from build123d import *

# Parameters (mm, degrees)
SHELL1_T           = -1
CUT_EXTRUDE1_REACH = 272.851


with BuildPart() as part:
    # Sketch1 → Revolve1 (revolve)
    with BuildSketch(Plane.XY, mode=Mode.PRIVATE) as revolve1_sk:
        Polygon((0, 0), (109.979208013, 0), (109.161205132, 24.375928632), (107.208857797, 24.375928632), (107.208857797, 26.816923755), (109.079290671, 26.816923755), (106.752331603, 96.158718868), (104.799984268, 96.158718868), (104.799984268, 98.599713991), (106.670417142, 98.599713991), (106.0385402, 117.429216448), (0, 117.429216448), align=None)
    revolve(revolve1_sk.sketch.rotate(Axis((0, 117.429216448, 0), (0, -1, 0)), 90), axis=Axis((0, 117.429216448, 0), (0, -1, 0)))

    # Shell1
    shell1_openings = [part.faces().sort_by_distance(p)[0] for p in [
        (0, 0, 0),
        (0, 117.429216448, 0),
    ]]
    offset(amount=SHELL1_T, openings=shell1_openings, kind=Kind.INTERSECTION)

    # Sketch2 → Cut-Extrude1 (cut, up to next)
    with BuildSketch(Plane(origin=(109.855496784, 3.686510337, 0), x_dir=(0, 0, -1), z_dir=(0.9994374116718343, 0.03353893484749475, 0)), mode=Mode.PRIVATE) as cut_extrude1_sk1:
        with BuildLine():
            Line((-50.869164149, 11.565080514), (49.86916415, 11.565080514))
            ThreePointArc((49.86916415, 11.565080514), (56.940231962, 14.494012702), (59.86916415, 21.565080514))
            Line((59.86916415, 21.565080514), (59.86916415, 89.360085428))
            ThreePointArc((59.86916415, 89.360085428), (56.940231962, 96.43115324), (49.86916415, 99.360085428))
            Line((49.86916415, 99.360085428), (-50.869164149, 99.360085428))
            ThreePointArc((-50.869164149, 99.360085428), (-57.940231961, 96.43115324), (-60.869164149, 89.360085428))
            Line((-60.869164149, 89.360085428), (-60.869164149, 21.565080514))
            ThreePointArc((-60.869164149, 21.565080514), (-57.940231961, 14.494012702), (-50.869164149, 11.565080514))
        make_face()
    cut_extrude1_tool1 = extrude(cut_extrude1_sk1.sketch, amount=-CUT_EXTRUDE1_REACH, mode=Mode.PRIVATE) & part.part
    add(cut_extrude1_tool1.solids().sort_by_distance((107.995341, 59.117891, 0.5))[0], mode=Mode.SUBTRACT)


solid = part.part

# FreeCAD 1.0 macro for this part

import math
import FreeCAD as App
import Part
import Sketcher
Q = App.Units.Quantity


def faces_at(feature, points):
    """Names of the faces that lie closest to the given points."""
    faces = feature.Shape.Faces
    near = lambda p: min(range(len(faces)), key=lambda i: faces[i].distToShape(Part.Vertex(*p))[0])
    return sorted({f"Face{near(p) + 1}" for p in points})


def add_polygon(sketch, points):
    """Adds a closed chain of lines whose ends are joined by coincident constraints."""
    first, n = sketch.GeometryCount, len(points)
    for a, b in zip(points, points[1:] + points[:1]):
        sketch.addGeometry(Part.LineSegment(App.Vector(*a, 0), App.Vector(*b, 0)), False)
    for i in range(n):
        sketch.addConstraint(Sketcher.Constraint("Coincident", first + i, 2, first + (i + 1) % n, 1))

doc = App.newDocument("Part")
body = doc.addObject("PartDesign::Body", "Body")

# Sketch on XY plane
sketch1 = body.newObject("Sketcher::SketchObject", "Sketch")
sketch1.AttachmentSupport = (doc.getObject("XY_Plane"), [""])
sketch1.MapMode = "FlatFace"
add_polygon(sketch1, [(0, 0), (110, 0), (109.2, 24.4), (107.2, 24.4), (107.2, 26.8), (109.1, 26.8), (106.8, 96.2), (104.8, 96.2), (104.8, 98.6), (106.7, 98.6), (106, 117.4), (0, 117.4)])  # lines 0-11
sketch1.addConstraint(Sketcher.Constraint("Horizontal", 0))
sketch1.addConstraint(Sketcher.Constraint("Horizontal", 2))
sketch1.addConstraint(Sketcher.Constraint("Vertical", 3))
sketch1.addConstraint(Sketcher.Constraint("Horizontal", 4))
sketch1.addConstraint(Sketcher.Constraint("Horizontal", 6))
sketch1.addConstraint(Sketcher.Constraint("Vertical", 7))
sketch1.addConstraint(Sketcher.Constraint("Horizontal", 8))
sketch1.addConstraint(Sketcher.Constraint("Horizontal", 10))
sketch1.addConstraint(Sketcher.Constraint("Vertical", 11))
sketch1.addConstraint(Sketcher.Constraint("Coincident", 11, 2, -1, 1))
sketch1.addConstraint(Sketcher.Constraint("Parallel", 1, 5))
sketch1.addConstraint(Sketcher.Constraint("Parallel", 5, 9))
sketch1.addConstraint(Sketcher.Constraint("Equal", 2, 6))
sketch1.addConstraint(Sketcher.Constraint("Equal", 4, 8))
sketch1.addConstraint(Sketcher.Constraint("Equal", 3, 7))
sketch1.addConstraint(Sketcher.Constraint("Distance", 9, Q("18.840102 mm")))
sketch1.addConstraint(Sketcher.Constraint("DistanceX", 0, 1, 0, 2, Q("109.979208 mm")))
sketch1.addConstraint(Sketcher.Constraint("DistanceX", 10, 2, 10, 1, Q("106.03854 mm")))
sketch1.addConstraint(Sketcher.Constraint("Distance", 1, Q("24.38965 mm")))
sketch1.addConstraint(Sketcher.Constraint("DistanceX", 2, 2, 2, 1, Q("1.952347 mm")))
sketch1.addConstraint(Sketcher.Constraint("DistanceX", 4, 1, 4, 2, Q("1.870433 mm")))
sketch1.addConstraint(Sketcher.Constraint("DistanceY", 3, 1, 3, 2, Q("2.440995 mm")))
sketch1.addConstraint(Sketcher.Constraint("DistanceY", 11, 2, 11, 1, Q("117.429216 mm")))
revolution = body.newObject("PartDesign::Revolution", "Revolution")
revolution.Profile = sketch1
revolution.ReferenceAxis = (sketch1, ["V_Axis"])
revolution.Angle = 360
doc.recompute()

thickness = body.newObject("PartDesign::Thickness", "Thickness")
thickness.Base = (revolution, faces_at(revolution, [(0, 0, 0), (0, 117.429, 0)]))
thickness.Value = 1
thickness.Reversed = True
thickness.Join = "Intersection"

# Sketch on an angled plane
sketch2 = body.newObject("Sketcher::SketchObject", "Sketch001")
sketch2.Placement = App.Placement(App.Vector(109.855497, 3.68651, 0), App.Rotation(App.Vector(0, 0, -1), App.Vector(-0.033538935, 0.999437412, 0), App.Vector(0.999437412, 0.033538935, 0), "ZXY"))
sketch2.addGeometry(Part.LineSegment(App.Vector(-51, 12, 0), App.Vector(50, 12, 0)), False)
sketch2.addGeometry(Part.ArcOfCircle(Part.Circle(App.Vector(50, 22, 0), App.Vector(0, 0, 1), 10), math.radians(-90), math.radians(0)), False)
sketch2.addGeometry(Part.LineSegment(App.Vector(60, 22, 0), App.Vector(60, 89, 0)), False)
sketch2.addGeometry(Part.ArcOfCircle(Part.Circle(App.Vector(50, 89, 0), App.Vector(0, 0, 1), 10), math.radians(0), math.radians(90)), False)
sketch2.addGeometry(Part.LineSegment(App.Vector(50, 99, 0), App.Vector(-51, 99, 0)), False)
sketch2.addGeometry(Part.ArcOfCircle(Part.Circle(App.Vector(-51, 89, 0), App.Vector(0, 0, 1), 10), math.radians(90), math.radians(180)), False)
sketch2.addGeometry(Part.LineSegment(App.Vector(-61, 89, 0), App.Vector(-61, 22, 0)), False)
sketch2.addGeometry(Part.ArcOfCircle(Part.Circle(App.Vector(-51, 22, 0), App.Vector(0, 0, 1), 10), math.radians(180), math.radians(270)), False)
sketch2.addConstraint(Sketcher.Constraint("Tangent", 0, 2, 1, 1))
sketch2.addConstraint(Sketcher.Constraint("Tangent", 1, 2, 2, 1))
sketch2.addConstraint(Sketcher.Constraint("Tangent", 2, 2, 3, 1))
sketch2.addConstraint(Sketcher.Constraint("Tangent", 3, 2, 4, 1))
sketch2.addConstraint(Sketcher.Constraint("Tangent", 4, 2, 5, 1))
sketch2.addConstraint(Sketcher.Constraint("Tangent", 5, 2, 6, 1))
sketch2.addConstraint(Sketcher.Constraint("Tangent", 6, 2, 7, 1))
sketch2.addConstraint(Sketcher.Constraint("Tangent", 7, 2, 0, 1))
sketch2.addConstraint(Sketcher.Constraint("Horizontal", 0))
sketch2.addConstraint(Sketcher.Constraint("Vertical", 2))
sketch2.addConstraint(Sketcher.Constraint("Horizontal", 4))
sketch2.addConstraint(Sketcher.Constraint("Vertical", 6))
sketch2.addConstraint(Sketcher.Constraint("Equal", 1, 3))
sketch2.addConstraint(Sketcher.Constraint("Equal", 3, 5))
sketch2.addConstraint(Sketcher.Constraint("Equal", 5, 7))
sketch2.addConstraint(Sketcher.Constraint("Radius", 1, Q("10 mm")))
sketch2.addConstraint(Sketcher.Constraint("DistanceX", 0, 1, 0, 2, Q("100.738328 mm")))
sketch2.addConstraint(Sketcher.Constraint("DistanceY", 2, 1, 2, 2, Q("67.795005 mm")))
sketch2.addConstraint(Sketcher.Constraint("DistanceY", -1, 1, 1, 3, Q("21.565081 mm")))
sketch2.addConstraint(Sketcher.Constraint("DistanceX", -1, 1, 1, 3, Q("49.869164 mm")))
pocket1 = body.newObject("PartDesign::Pocket", "Pocket")
pocket1.Profile = sketch2
pocket1.Length = 22.381047

doc.recompute()
